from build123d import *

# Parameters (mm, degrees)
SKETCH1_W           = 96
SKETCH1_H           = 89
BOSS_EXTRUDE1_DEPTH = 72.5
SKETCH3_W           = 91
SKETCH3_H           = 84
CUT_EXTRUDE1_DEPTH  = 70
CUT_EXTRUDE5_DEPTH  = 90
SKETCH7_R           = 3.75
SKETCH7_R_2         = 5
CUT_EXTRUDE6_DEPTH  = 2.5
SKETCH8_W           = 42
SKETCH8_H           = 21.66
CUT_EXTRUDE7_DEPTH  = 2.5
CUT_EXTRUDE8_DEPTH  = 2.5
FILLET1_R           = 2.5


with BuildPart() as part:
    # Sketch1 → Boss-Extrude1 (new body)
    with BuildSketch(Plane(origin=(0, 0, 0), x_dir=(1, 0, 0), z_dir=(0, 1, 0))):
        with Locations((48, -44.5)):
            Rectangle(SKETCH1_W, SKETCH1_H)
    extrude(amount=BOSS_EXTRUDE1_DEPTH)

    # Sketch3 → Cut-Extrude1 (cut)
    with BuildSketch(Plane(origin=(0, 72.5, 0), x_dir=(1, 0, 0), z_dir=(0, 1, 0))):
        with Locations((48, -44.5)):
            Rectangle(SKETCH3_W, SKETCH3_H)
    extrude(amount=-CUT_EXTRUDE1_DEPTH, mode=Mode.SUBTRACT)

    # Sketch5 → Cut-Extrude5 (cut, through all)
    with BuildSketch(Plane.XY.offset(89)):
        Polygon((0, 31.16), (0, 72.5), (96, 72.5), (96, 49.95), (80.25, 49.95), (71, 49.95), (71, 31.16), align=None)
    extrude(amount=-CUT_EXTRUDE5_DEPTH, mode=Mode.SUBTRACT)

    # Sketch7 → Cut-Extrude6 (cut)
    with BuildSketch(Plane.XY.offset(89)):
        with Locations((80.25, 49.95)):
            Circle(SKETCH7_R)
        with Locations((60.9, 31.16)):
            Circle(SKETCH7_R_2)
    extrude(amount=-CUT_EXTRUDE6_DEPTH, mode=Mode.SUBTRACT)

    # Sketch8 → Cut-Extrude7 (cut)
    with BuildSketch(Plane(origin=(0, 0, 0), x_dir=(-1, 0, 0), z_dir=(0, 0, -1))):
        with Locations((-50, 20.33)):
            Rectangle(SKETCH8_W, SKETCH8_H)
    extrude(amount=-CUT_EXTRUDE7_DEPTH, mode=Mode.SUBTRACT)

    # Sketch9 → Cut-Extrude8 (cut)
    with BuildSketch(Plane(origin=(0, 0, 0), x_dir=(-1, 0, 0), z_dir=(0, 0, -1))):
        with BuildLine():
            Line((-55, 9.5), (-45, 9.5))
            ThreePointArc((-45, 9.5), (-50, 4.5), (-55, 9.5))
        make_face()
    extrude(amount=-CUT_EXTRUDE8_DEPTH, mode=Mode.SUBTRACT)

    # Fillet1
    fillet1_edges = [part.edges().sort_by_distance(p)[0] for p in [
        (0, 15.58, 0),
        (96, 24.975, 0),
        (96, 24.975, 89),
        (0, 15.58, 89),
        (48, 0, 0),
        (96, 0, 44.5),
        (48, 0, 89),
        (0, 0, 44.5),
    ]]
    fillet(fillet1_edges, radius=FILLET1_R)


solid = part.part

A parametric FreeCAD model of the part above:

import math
import FreeCAD as App
import Part
import Sketcher
Q = App.Units.Quantity


def edges_at(feature, points):
    """Names of the edges that pass closest to the given points."""
    edges = feature.Shape.Edges
    near = lambda p: min(range(len(edges)), key=lambda i: edges[i].distToShape(Part.Vertex(*p))[0])
    return sorted({f"Edge{near(p) + 1}" for p in points})

doc = App.newDocument("Part")
params = doc.addObject("Spreadsheet::Sheet", "Params")
for row, (alias, value) in enumerate([
    ("sketch1_width", "96 mm"),
    ("sketch1_height", "89 mm"),
    ("pad1_length", "72.5 mm"),
    ("sketch2_width", "91 mm"),
    ("sketch2_height", "84 mm"),
    ("pocket1_length", "70 mm"),
    ("sketch3_width", "71 mm"),
    ("sketch3_width2", "25 mm"),
    ("sketch3_height", "41.34 mm"),
    ("sketch3_height2", "18.79 mm"),
    ("sketch4_diameter", "10 mm"),
    ("sketch4_diameter2", "7.5 mm"),
    ("pocket3_length", "2.5 mm"),
    ("sketch5_width", "42 mm"),
    ("sketch5_height", "21.66 mm"),
    ("pocket4_length", "2.5 mm"),
    ("sketch6_radius", "5 mm"),
    ("pocket5_length", "2.5 mm"),
    ("fillet_radius", "2.5 mm"),
], start=1):
    params.set(f"A{row}", alias)
    params.set(f"B{row}", "=" + value)
    params.setAlias(f"B{row}", alias)

body = doc.addObject("PartDesign::Body", "Body")

sketch1 = doc.addObject("Sketcher::SketchObject", "Sketch")
body.addObject(sketch1)
sketch1.AttachmentSupport = (doc.XZ_Plane, [""])
sketch1.MapMode = "FlatFace"
sketch1.addGeometry(Part.LineSegment(App.Vector(0, 0, 0), App.Vector(0, 89, 0)), False)
sketch1.addGeometry(Part.LineSegment(App.Vector(0, 89, 0), App.Vector(96, 89, 0)), False)
sketch1.addGeometry(Part.LineSegment(App.Vector(96, 89, 0), App.Vector(96, 0, 0)), False)
sketch1.addGeometry(Part.LineSegment(App.Vector(96, 0, 0), App.Vector(0, 0, 0)), False)
sketch1.addConstraint(Sketcher.Constraint("Coincident", 0, 2, 1, 1))
sketch1.addConstraint(Sketcher.Constraint("Coincident", 1, 2, 2, 1))
sketch1.addConstraint(Sketcher.Constraint("Coincident", 2, 2, 3, 1))
sketch1.addConstraint(Sketcher.Constraint("Coincident", 3, 2, 0, 1))
sketch1.addConstraint(Sketcher.Constraint("Vertical", 0))
sketch1.addConstraint(Sketcher.Constraint("Horizontal", 1))
sketch1.addConstraint(Sketcher.Constraint("Vertical", 2))
sketch1.addConstraint(Sketcher.Constraint("Horizontal", 3))
sketch1.addConstraint(Sketcher.Constraint("Coincident", 3, 2, -1, 1))
sketch1.addConstraint(Sketcher.Constraint("DistanceX", 1, 1, 1, 2, Q("96 mm")))
sketch1.addConstraint(Sketcher.Constraint("DistanceY", 0, 1, 0, 2, Q("89 mm")))
sketch1.setExpression("Constraints[9]", "Params.sketch1_width")
sketch1.setExpression("Constraints[10]", "Params.sketch1_height")
pad1 = doc.addObject("PartDesign::Pad", "Pad")
body.addObject(pad1)
pad1.Profile = sketch1
pad1.setExpression("Length", "Params.pad1_length")
pad1.Reversed = True

sketch2 = doc.addObject("Sketcher::SketchObject", "Sketch001")
body.addObject(sketch2)
sketch2.AttachmentSupport = (doc.XZ_Plane, [""])
sketch2.MapMode = "FlatFace"
sketch2.AttachmentOffset = App.Placement(App.Vector(0, 0, -72.5), App.Rotation())
sketch2.addGeometry(Part.LineSegment(App.Vector(2, 2, 0), App.Vector(2, 86, 0)), False)
sketch2.addGeometry(Part.LineSegment(App.Vector(2, 86, 0), App.Vector(94, 86, 0)), False)
sketch2.addGeometry(Part.LineSegment(App.Vector(94, 86, 0), App.Vector(94, 2, 0)), False)
sketch2.addGeometry(Part.LineSegment(App.Vector(94, 2, 0), App.Vector(2, 2, 0)), False)
sketch2.addConstraint(Sketcher.Constraint("Coincident", 0, 2, 1, 1))
sketch2.addConstraint(Sketcher.Constraint("Coincident", 1, 2, 2, 1))
sketch2.addConstraint(Sketcher.Constraint("Coincident", 2, 2, 3, 1))
sketch2.addConstraint(Sketcher.Constraint("Coincident", 3, 2, 0, 1))
sketch2.addConstraint(Sketcher.Constraint("Vertical", 0))
sketch2.addConstraint(Sketcher.Constraint("Horizontal", 1))
sketch2.addConstraint(Sketcher.Constraint("Vertical", 2))
sketch2.addConstraint(Sketcher.Constraint("Horizontal", 3))
sketch2.addConstraint(Sketcher.Constraint("DistanceX", 1, 1, 1, 2, Q("91 mm")))
sketch2.addConstraint(Sketcher.Constraint("DistanceY", 0, 1, 0, 2, Q("84 mm")))
sketch2.addConstraint(Sketcher.Constraint("DistanceX", -1, 1, 0, 2, Q("2.5 mm")))
sketch2.addConstraint(Sketcher.Constraint("DistanceY", -1, 1, 0, 2, Q("86.5 mm")))
sketch2.setExpression("Constraints[8]", "Params.sketch2_width")
sketch2.setExpression("Constraints[9]", "Params.sketch2_height")
pocket1 = doc.addObject("PartDesign::Pocket", "Pocket")
body.addObject(pocket1)
pocket1.Profile = sketch2
pocket1.setExpression("Length", "Params.pocket1_length")
pocket1.Reversed = True

sketch3 = doc.addObject("Sketcher::SketchObject", "Sketch002")
body.addObject(sketch3)
sketch3.AttachmentSupport = (doc.XY_Plane, [""])
sketch3.MapMode = "FlatFace"
sketch3.AttachmentOffset = App.Placement(App.Vector(0, 0, 89), App.Rotation())
sketch3.addGeometry(Part.LineSegment(App.Vector(0, 72, 0), App.Vector(0, 31, 0)), False)
sketch3.addGeometry(Part.LineSegment(App.Vector(0, 31, 0), App.Vector(71, 31, 0)), False)
sketch3.addGeometry(Part.LineSegment(App.Vector(71, 31, 0), App.Vector(71, 50, 0)), False)
sketch3.addGeometry(Part.LineSegment(App.Vector(71, 50, 0), App.Vector(96, 50, 0)), False)
sketch3.addGeometry(Part.LineSegment(App.Vector(96, 50, 0), App.Vector(96, 72, 0)), False)
sketch3.addGeometry(Part.LineSegment(App.Vector(96, 72, 0), App.Vector(0, 72, 0)), False)
sketch3.addConstraint(Sketcher.Constraint("Coincident", 0, 2, 1, 1))
sketch3.addConstraint(Sketcher.Constraint("Coincident", 1, 2, 2, 1))
sketch3.addConstraint(Sketcher.Constraint("Coincident", 2, 2, 3, 1))
sketch3.addConstraint(Sketcher.Constraint("Coincident", 3, 2, 4, 1))
sketch3.addConstraint(Sketcher.Constraint("Coincident", 4, 2, 5, 1))
sketch3.addConstraint(Sketcher.Constraint("Coincident", 5, 2, 0, 1))
sketch3.addConstraint(Sketcher.Constraint("Vertical", 0))
sketch3.addConstraint(Sketcher.Constraint("Horizontal", 1))
sketch3.addConstraint(Sketcher.Constraint("Vertical", 2))
sketch3.addConstraint(Sketcher.Constraint("Horizontal", 3))
sketch3.addConstraint(Sketcher.Constraint("Vertical", 4))
sketch3.addConstraint(Sketcher.Constraint("Horizontal", 5))
sketch3.addConstraint(Sketcher.Constraint("PointOnObject", 0, 2, -2))
sketch3.addConstraint(Sketcher.Constraint("DistanceX", 1, 1, 1, 2, Q("71 mm")))
sketch3.addConstraint(Sketcher.Constraint("DistanceX", 3, 1, 3, 2, Q("25 mm")))
sketch3.addConstraint(Sketcher.Constraint("DistanceY", 0, 2, 0, 1, Q("41.34 mm")))
sketch3.addConstraint(Sketcher.Constraint("DistanceY", 2, 1, 2, 2, Q("18.79 mm")))
sketch3.addConstraint(Sketcher.Constraint("DistanceY", -1, 1, 4, 2, Q("72.5 mm")))
sketch3.setExpression("Constraints[13]", "Params.sketch3_width")
sketch3.setExpression("Constraints[14]", "Params.sketch3_width2")
sketch3.setExpression("Constraints[15]", "Params.sketch3_height")
sketch3.setExpression("Constraints[16]", "Params.sketch3_height2")
pocket2 = doc.addObject("PartDesign::Pocket", "Pocket001")
body.addObject(pocket2)
pocket2.Profile = sketch3
pocket2.Type = "ThroughAll"

sketch4 = doc.addObject("Sketcher::SketchObject", "Sketch003")
body.addObject(sketch4)
sketch4.AttachmentSupport = (doc.XY_Plane, [""])
sketch4.MapMode = "FlatFace"
sketch4.AttachmentOffset = App.Placement(App.Vector(0, 0, 89), App.Rotation())
sketch4.addGeometry(Part.Circle(App.Vector(80.2, 50, 0), App.Vector(0, 0, 1), 3.8), False)
sketch4.addGeometry(Part.Circle(App.Vector(60.9, 31.2, 0), App.Vector(0, 0, 1), 5), False)
sketch4.addConstraint(Sketcher.Constraint("Diameter", 1, Q("10 mm")))
sketch4.addConstraint(Sketcher.Constraint("Diameter", 0, Q("7.5 mm")))
sketch4.addConstraint(Sketcher.Constraint("DistanceX", -1, 1, 1, 3, Q("60.9 mm")))
sketch4.addConstraint(Sketcher.Constraint("DistanceX", -1, 1, 0, 3, Q("80.25 mm")))
sketch4.addConstraint(Sketcher.Constraint("DistanceY", -1, 1, 0, 3, Q("49.95 mm")))
sketch4.addConstraint(Sketcher.Constraint("DistanceY", -1, 1, 1, 3, Q("31.16 mm")))
sketch4.setExpression("Constraints[0]", "Params.sketch4_diameter")
sketch4.setExpression("Constraints[1]", "Params.sketch4_diameter2")
pocket3 = doc.addObject("PartDesign::Pocket", "Pocket002")
body.addObject(pocket3)
pocket3.Profile = sketch4
pocket3.setExpression("Length", "Params.pocket3_length")

sketch5 = doc.addObject("Sketcher::SketchObject", "Sketch004")
body.addObject(sketch5)
sketch5.AttachmentSupport = (doc.XY_Plane, [""])
sketch5.MapMode = "FlatFace"
sketch5.addGeometry(Part.LineSegment(App.Vector(71, 31, 0), App.Vector(71, 10, 0)), False)
sketch5.addGeometry(Part.LineSegment(App.Vector(71, 10, 0), App.Vector(29, 10, 0)), False)
sketch5.addGeometry(Part.LineSegment(App.Vector(29, 10, 0), App.Vector(29, 31, 0)), False)
sketch5.addGeometry(Part.LineSegment(App.Vector(29, 31, 0), App.Vector(71, 31, 0)), False)
sketch5.addConstraint(Sketcher.Constraint("Coincident", 0, 2, 1, 1))
sketch5.addConstraint(Sketcher.Constraint("Coincident", 1, 2, 2, 1))
sketch5.addConstraint(Sketcher.Constraint("Coincident", 2, 2, 3, 1))
sketch5.addConstraint(Sketcher.Constraint("Coincident", 3, 2, 0, 1))
sketch5.addConstraint(Sketcher.Constraint("Vertical", 0))
sketch5.addConstraint(Sketcher.Constraint("Horizontal", 1))
sketch5.addConstraint(Sketcher.Constraint("Vertical", 2))
sketch5.addConstraint(Sketcher.Constraint("Horizontal", 3))
sketch5.addConstraint(Sketcher.Constraint("DistanceX", 1, 2, 1, 1, Q("42 mm")))
sketch5.addConstraint(Sketcher.Constraint("DistanceX", -1, 1, 0, 2, Q("71 mm")))
sketch5.addConstraint(Sketcher.Constraint("DistanceY", 0, 2, 0, 1, Q("21.66 mm")))
sketch5.addConstraint(Sketcher.Constraint("DistanceY", -1, 1, 0, 2, Q("9.5 mm")))
sketch5.setExpression("Constraints[8]", "Params.sketch5_width")
sketch5.setExpression("Constraints[10]", "Params.sketch5_height")
pocket4 = doc.addObject("PartDesign::Pocket", "Pocket003")
body.addObject(pocket4)
pocket4.Profile = sketch5
pocket4.setExpression("Length", "Params.pocket4_length")
pocket4.Reversed = True

sketch6 = doc.addObject("Sketcher::SketchObject", "Sketch005")
body.addObject(sketch6)
sketch6.AttachmentSupport = (doc.XY_Plane, [""])
sketch6.MapMode = "FlatFace"
sketch6.addGeometry(Part.LineSegment(App.Vector(45, 10, 0), App.Vector(55, 10, 0)), False)
sketch6.addGeometry(Part.ArcOfCircle(Part.Circle(App.Vector(50, 10, 0), App.Vector(0, 0, 1), 5), math.radians(180), math.radians(360)), False)
sketch6.addConstraint(Sketcher.Constraint("Coincident", 0, 1, 1, 1))
sketch6.addConstraint(Sketcher.Constraint("Coincident", 1, 2, 0, 2))
sketch6.addConstraint(Sketcher.Constraint("Horizontal", 0))
sketch6.addConstraint(Sketcher.Constraint("Horizontal", 1, 3, 0, 1))
sketch6.addConstraint(Sketcher.Constraint("Radius", 1, Q("5 mm")))
sketch6.addConstraint(Sketcher.Constraint("DistanceX", -1, 1, 1, 3, Q("50 mm")))
sketch6.addConstraint(Sketcher.Constraint("DistanceY", -1, 1, 1, 3, Q("9.5 mm")))
sketch6.setExpression("Constraints[4]", "Params.sketch6_radius")
pocket5 = doc.addObject("PartDesign::Pocket", "Pocket004")
body.addObject(pocket5)
pocket5.Profile = sketch6
pocket5.setExpression("Length", "Params.pocket5_length")
pocket5.Reversed = True
doc.recompute()

fillet = doc.addObject("PartDesign::Fillet", "Fillet")
body.addObject(fillet)
fillet.Base = (pocket5, edges_at(pocket5, [
    (0, 15.58, 0),
    (96, 24.975, 0),
    (96, 24.975, 89),
    (0, 15.58, 89),
    (48, 0, 0),
    (96, 0, 44.5),
    (48, 0, 89),
    (0, 0, 44.5),
]))
fillet.setExpression("Radius", "Params.fillet_radius")

doc.recompute()
